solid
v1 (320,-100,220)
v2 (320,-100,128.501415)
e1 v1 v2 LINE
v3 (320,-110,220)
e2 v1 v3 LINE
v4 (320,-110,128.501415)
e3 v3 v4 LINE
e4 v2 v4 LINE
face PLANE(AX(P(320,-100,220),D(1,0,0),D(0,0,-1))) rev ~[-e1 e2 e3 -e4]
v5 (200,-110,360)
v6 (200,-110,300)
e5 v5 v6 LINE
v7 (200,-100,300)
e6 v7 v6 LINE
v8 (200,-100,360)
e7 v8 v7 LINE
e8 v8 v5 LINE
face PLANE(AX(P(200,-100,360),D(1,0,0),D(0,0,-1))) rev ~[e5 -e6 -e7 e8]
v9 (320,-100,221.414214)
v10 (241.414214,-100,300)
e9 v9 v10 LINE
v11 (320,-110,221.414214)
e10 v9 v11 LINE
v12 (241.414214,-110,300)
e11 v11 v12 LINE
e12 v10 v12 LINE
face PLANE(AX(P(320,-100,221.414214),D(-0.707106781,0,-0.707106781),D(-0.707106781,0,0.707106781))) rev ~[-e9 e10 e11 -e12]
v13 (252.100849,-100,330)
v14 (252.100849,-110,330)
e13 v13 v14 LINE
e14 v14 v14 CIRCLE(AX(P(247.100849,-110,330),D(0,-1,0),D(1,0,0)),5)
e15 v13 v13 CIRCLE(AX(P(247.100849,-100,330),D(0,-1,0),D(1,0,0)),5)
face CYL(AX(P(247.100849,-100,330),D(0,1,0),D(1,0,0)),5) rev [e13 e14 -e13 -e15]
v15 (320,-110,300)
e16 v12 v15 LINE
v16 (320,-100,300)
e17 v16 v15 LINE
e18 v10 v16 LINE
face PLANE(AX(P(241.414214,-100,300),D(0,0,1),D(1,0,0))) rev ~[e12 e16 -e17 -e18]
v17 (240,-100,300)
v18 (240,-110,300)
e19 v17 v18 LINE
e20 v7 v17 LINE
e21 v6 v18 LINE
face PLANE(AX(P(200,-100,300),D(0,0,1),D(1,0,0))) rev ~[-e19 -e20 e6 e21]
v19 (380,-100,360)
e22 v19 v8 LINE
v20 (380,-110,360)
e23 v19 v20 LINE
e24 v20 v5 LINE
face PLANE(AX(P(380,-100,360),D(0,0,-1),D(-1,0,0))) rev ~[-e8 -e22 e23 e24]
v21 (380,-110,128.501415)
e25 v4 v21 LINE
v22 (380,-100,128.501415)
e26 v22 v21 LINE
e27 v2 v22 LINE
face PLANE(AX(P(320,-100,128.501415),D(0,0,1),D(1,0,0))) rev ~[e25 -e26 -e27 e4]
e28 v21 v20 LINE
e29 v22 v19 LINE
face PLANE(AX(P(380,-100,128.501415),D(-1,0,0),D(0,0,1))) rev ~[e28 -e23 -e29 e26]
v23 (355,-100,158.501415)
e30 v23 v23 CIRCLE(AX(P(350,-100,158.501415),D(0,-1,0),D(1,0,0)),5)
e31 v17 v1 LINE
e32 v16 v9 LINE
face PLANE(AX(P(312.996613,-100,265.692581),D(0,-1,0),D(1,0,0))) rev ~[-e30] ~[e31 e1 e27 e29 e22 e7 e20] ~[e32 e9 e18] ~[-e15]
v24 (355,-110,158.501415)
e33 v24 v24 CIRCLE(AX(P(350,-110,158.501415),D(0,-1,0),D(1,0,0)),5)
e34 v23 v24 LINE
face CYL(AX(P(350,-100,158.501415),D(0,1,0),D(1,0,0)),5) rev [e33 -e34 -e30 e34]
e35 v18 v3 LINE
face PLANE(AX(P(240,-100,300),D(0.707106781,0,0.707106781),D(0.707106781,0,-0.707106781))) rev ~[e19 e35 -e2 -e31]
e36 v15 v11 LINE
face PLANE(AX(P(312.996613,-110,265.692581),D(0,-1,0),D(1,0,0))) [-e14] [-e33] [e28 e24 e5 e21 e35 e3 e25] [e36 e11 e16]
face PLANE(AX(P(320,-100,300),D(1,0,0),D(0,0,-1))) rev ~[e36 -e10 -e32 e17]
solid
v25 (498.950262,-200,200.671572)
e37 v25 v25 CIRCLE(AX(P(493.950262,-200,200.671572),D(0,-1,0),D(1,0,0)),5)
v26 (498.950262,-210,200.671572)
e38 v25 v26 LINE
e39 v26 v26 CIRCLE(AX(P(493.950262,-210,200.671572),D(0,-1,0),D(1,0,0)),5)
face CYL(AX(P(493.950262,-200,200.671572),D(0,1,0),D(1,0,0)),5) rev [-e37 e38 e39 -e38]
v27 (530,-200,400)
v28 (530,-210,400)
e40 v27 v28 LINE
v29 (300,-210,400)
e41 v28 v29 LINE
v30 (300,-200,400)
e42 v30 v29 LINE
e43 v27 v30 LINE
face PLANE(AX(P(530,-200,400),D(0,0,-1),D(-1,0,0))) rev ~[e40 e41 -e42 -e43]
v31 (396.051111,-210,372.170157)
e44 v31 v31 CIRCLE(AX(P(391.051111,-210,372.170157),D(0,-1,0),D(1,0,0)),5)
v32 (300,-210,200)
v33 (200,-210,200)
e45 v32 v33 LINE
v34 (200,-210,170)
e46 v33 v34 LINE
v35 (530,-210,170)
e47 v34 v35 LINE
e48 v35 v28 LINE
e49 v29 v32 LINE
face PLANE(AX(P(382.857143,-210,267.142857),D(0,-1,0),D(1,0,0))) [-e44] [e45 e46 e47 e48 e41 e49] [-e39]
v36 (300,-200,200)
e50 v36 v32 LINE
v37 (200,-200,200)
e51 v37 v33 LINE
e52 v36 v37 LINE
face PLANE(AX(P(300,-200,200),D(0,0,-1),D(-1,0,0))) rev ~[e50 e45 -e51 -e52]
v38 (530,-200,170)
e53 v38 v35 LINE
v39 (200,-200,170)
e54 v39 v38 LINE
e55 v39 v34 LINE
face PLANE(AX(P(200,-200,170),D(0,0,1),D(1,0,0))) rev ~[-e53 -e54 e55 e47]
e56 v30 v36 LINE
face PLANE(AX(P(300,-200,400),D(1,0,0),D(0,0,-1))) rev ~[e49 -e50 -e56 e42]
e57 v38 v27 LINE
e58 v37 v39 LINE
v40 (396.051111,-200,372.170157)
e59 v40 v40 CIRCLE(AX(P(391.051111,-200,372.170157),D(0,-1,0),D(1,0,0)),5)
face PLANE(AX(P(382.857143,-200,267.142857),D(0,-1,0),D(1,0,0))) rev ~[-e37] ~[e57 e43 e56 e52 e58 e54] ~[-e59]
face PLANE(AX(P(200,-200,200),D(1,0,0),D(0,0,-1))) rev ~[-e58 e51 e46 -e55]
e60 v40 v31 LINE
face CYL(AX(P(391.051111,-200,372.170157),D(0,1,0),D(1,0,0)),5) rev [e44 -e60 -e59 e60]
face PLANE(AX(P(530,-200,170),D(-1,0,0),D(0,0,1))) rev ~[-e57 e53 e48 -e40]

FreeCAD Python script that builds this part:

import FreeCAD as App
import Part
import Sketcher


def add_polygon(sketch, points):
    """Adds a closed chain of lines whose ends are joined by coincident constraints."""
    first, n = sketch.GeometryCount, len(points)
    for a, b in zip(points, points[1:] + points[:1]):
        sketch.addGeometry(Part.LineSegment(App.Vector(*a, 0), App.Vector(*b, 0)), False)
    for i in range(n):
        sketch.addConstraint(Sketcher.Constraint("Coincident", first + i, 2, first + (i + 1) % n, 1))

doc = App.newDocument("Part")
params = doc.addObject("Spreadsheet::Sheet", "Params")
for row, (alias, value) in enumerate([
    ("sketch1_diameter", "10 mm"),
    ("sketch1_width", "40 mm"),
    ("sketch1_width2", "60 mm"),
    ("sketch1_width3", "180 mm"),
    ("pad1_length", "10 mm"),
    ("sketch2_diameter", "10 mm"),
    ("sketch2_width", "100 mm"),
    ("sketch2_width2", "330 mm"),
    ("sketch2_height", "200 mm"),
    ("pad2_length", "10 mm"),
], start=1):
    params.set(f"A{row}", alias)
    params.set(f"B{row}", "=" + value)
    params.setAlias(f"B{row}", alias)

body = doc.addObject("PartDesign::Body", "Body")

sketch1 = body.newObject("Sketcher::SketchObject", "Sketch")
sketch1.AttachmentSupport = (doc.getObject("XZ_Plane"), [""])
sketch1.MapMode = "FlatFace"
sketch1.AttachmentOffset = App.Placement(App.Vector(0, 0, 100), App.Rotation())
add_polygon(sketch1, [(200, 360), (200, 300), (240, 300), (320, 220), (320, 129), (380, 129), (380, 360)])
sketch1.addGeometry(Part.Circle(App.Vector(350, 159, 0), App.Vector(0, 0, 1), 5), False)
add_polygon(sketch1, [(320, 300), (320, 221), (241, 300)])
sketch1.addGeometry(Part.Circle(App.Vector(247, 330, 0), App.Vector(0, 0, 1), 5), False)
sketch1.addConstraint(Sketcher.Constraint("Vertical", 0))
sketch1.addConstraint(Sketcher.Constraint("Horizontal", 1))
sketch1.addConstraint(Sketcher.Constraint("Vertical", 3))
sketch1.addConstraint(Sketcher.Constraint("Horizontal", 4))
sketch1.addConstraint(Sketcher.Constraint("Vertical", 5))
sketch1.addConstraint(Sketcher.Constraint("Horizontal", 6))
sketch1.addConstraint(Sketcher.Constraint("Vertical", 8))
sketch1.addConstraint(Sketcher.Constraint("Horizontal", 10))
sketch1.addConstraint(Sketcher.Constraint("Equal", 7, 11))
sketch1.addConstraint(Sketcher.Constraint("Parallel", 2, 9))
sketch1.addConstraint(Sketcher.Constraint("Horizontal", 1, 2, 9, 2))
sketch1.addConstraint(Sketcher.Constraint("Vertical", 3, 2, 8, 2))
sketch1.addConstraint(Sketcher.Constraint("Equal", 4, 0))
sketch1.addConstraint(Sketcher.Constraint("Equal", 10, 8))
sketch1.addConstraint(Sketcher.Constraint("Diameter", 7, 10.0))
sketch1.addConstraint(Sketcher.Constraint("DistanceX", 1, 1, 1, 2, 40.0))
sketch1.addConstraint(Sketcher.Constraint("DistanceX", 4, 1, 4, 2, 60.0))
sketch1.addConstraint(Sketcher.Constraint("DistanceX", 6, 2, 6, 1, 180.0))
sketch1.addConstraint(Sketcher.Constraint("DistanceX", -1, 1, 7, 3, 350.0))
sketch1.addConstraint(Sketcher.Constraint("DistanceY", -1, 1, 11, 3, 330.0))
sketch1.addConstraint(Sketcher.Constraint("DistanceX", -1, 1, 0, 2, 200.0))
sketch1.addConstraint(Sketcher.Constraint("DistanceY", -1, 1, 0, 2, 300.0))
sketch1.addConstraint(Sketcher.Constraint("DistanceY", 3, 2, 7, 3, 30.0))
sketch1.addConstraint(Sketcher.Constraint("DistanceY", 7, 3, 8, 2, 62.912799))
sketch1.addConstraint(Sketcher.Constraint("DistanceX", 10, 1, 10, 2, 78.585786))
sketch1.addConstraint(Sketcher.Constraint("DistanceX", -1, 1, 11, 3, 247.100849))
sketch1.setExpression("Constraints[24]", "Params.sketch1_diameter")
sketch1.setExpression("Constraints[25]", "Params.sketch1_width")
sketch1.setExpression("Constraints[26]", "Params.sketch1_width2")
sketch1.setExpression("Constraints[27]", "Params.sketch1_width3")
pad1 = body.newObject("PartDesign::Pad", "Pad")
pad1.Profile = sketch1
pad1.setExpression("Length", "Params.pad1_length")
body2 = doc.addObject("PartDesign::Body", "Body001")

sketch2 = body2.newObject("Sketcher::SketchObject", "Sketch001")
sketch2.AttachmentSupport = (doc.getObject("XZ_Plane001"), [""])
sketch2.MapMode = "FlatFace"
sketch2.AttachmentOffset = App.Placement(App.Vector(0, 0, 200), App.Rotation())
add_polygon(sketch2, [(300, 400), (300, 200), (200, 200), (200, 170), (530, 170), (530, 400)])
sketch2.addGeometry(Part.Circle(App.Vector(494, 201, 0), App.Vector(0, 0, 1), 5), False)
sketch2.addGeometry(Part.Circle(App.Vector(391, 372, 0), App.Vector(0, 0, 1), 5), False)
sketch2.addConstraint(Sketcher.Constraint("Vertical", 0))
sketch2.addConstraint(Sketcher.Constraint("Horizontal", 1))
sketch2.addConstraint(Sketcher.Constraint("Vertical", 2))
sketch2.addConstraint(Sketcher.Constraint("Horizontal", 3))
sketch2.addConstraint(Sketcher.Constraint("Vertical", 4))
sketch2.addConstraint(Sketcher.Constraint("Horizontal", 5))
sketch2.addConstraint(Sketcher.Constraint("Equal", 6, 7))
sketch2.addConstraint(Sketcher.Constraint("Equal", 5, 4))
sketch2.addConstraint(Sketcher.Constraint("Diameter", 6, 10.0))
sketch2.addConstraint(Sketcher.Constraint("DistanceX", 1, 2, 1, 1, 100.0))
sketch2.addConstraint(Sketcher.Constraint("DistanceX", 3, 1, 3, 2, 330.0))
sketch2.addConstraint(Sketcher.Constraint("DistanceY", 0, 2, 0, 1, 200.0))
sketch2.addConstraint(Sketcher.Constraint("DistanceX", -1, 1, 0, 2, 300.0))
sketch2.addConstraint(Sketcher.Constraint("DistanceY", -1, 1, 0, 2, 200.0))
sketch2.addConstraint(Sketcher.Constraint("DistanceX", -1, 1, 6, 3, 493.950262))
sketch2.addConstraint(Sketcher.Constraint("DistanceY", -1, 1, 6, 3, 200.671572))
sketch2.addConstraint(Sketcher.Constraint("DistanceX", -1, 1, 7, 3, 391.051111))
sketch2.addConstraint(Sketcher.Constraint("DistanceY", -1, 1, 7, 3, 372.170157))
sketch2.setExpression("Constraints[14]", "Params.sketch2_diameter")
sketch2.setExpression("Constraints[15]", "Params.sketch2_width")
sketch2.setExpression("Constraints[16]", "Params.sketch2_width2")
sketch2.setExpression("Constraints[17]", "Params.sketch2_height")
pad2 = body2.newObject("PartDesign::Pad", "Pad001")
pad2.Profile = sketch2
pad2.setExpression("Length", "Params.pad2_length")

doc.recompute()
